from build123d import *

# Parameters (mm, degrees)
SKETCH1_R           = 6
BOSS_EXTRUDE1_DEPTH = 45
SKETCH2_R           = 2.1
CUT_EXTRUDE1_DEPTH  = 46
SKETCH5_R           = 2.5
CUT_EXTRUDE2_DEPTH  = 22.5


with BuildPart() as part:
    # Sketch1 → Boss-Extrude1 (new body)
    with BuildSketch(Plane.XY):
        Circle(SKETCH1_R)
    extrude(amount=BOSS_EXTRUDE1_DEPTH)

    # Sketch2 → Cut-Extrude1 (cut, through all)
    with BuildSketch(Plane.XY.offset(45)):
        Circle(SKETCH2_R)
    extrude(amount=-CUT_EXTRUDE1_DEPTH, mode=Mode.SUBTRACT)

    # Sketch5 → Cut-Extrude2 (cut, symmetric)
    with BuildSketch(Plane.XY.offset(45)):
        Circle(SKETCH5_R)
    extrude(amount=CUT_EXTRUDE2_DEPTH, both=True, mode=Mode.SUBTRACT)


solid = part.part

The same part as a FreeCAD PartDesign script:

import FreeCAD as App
import Part
import Sketcher
Q = App.Units.Quantity

doc = App.newDocument("Part")
body = doc.addObject("PartDesign::Body", "Body")

sketch1 = doc.addObject("Sketcher::SketchObject", "Sketch")
body.addObject(sketch1)
sketch1.AttachmentSupport = (doc.XY_Plane, [""])
sketch1.MapMode = "FlatFace"
sketch1.addGeometry(Part.Circle(App.Vector(0, 0, 0), App.Vector(0, 0, 1), 6), False)
sketch1.addConstraint(Sketcher.Constraint("Coincident", 0, 3, -1, 1))
sketch1.addConstraint(Sketcher.Constraint("Diameter", 0, Q("12 mm")))
pad1 = doc.addObject("PartDesign::Pad", "Pad")
body.addObject(pad1)
pad1.Profile = sketch1
pad1.Length = 45

sketch2 = doc.addObject("Sketcher::SketchObject", "Sketch001")
body.addObject(sketch2)
sketch2.AttachmentSupport = (doc.XY_Plane, [""])
sketch2.MapMode = "FlatFace"
sketch2.AttachmentOffset = App.Placement(App.Vector(0, 0, 45), App.Rotation())
sketch2.addGeometry(Part.Circle(App.Vector(0, 0, 0), App.Vector(0, 0, 1), 2.1), False)
sketch2.addConstraint(Sketcher.Constraint("Coincident", 0, 3, -1, 1))
sketch2.addConstraint(Sketcher.Constraint("Diameter", 0, Q("4.2 mm")))
pocket1 = doc.addObject("PartDesign::Pocket", "Pocket")
body.addObject(pocket1)
pocket1.Profile = sketch2
pocket1.Type = "ThroughAll"

sketch3 = doc.addObject("Sketcher::SketchObject", "Sketch002")
body.addObject(sketch3)
sketch3.AttachmentSupport = (doc.XY_Plane, [""])
sketch3.MapMode = "FlatFace"
sketch3.AttachmentOffset = App.Placement(App.Vector(0, 0, 45), App.Rotation())
sketch3.addGeometry(Part.Circle(App.Vector(0, 0, 0), App.Vector(0, 0, 1), 2.5), False)
sketch3.addConstraint(Sketcher.Constraint("Coincident", 0, 3, -1, 1))
sketch3.addConstraint(Sketcher.Constraint("Diameter", 0, Q("5 mm")))
pocket2 = doc.addObject("PartDesign::Pocket", "Pocket001")
body.addObject(pocket2)
pocket2.Profile = sketch3
pocket2.Length = 45
pocket2.Midplane = True

doc.recompute()
